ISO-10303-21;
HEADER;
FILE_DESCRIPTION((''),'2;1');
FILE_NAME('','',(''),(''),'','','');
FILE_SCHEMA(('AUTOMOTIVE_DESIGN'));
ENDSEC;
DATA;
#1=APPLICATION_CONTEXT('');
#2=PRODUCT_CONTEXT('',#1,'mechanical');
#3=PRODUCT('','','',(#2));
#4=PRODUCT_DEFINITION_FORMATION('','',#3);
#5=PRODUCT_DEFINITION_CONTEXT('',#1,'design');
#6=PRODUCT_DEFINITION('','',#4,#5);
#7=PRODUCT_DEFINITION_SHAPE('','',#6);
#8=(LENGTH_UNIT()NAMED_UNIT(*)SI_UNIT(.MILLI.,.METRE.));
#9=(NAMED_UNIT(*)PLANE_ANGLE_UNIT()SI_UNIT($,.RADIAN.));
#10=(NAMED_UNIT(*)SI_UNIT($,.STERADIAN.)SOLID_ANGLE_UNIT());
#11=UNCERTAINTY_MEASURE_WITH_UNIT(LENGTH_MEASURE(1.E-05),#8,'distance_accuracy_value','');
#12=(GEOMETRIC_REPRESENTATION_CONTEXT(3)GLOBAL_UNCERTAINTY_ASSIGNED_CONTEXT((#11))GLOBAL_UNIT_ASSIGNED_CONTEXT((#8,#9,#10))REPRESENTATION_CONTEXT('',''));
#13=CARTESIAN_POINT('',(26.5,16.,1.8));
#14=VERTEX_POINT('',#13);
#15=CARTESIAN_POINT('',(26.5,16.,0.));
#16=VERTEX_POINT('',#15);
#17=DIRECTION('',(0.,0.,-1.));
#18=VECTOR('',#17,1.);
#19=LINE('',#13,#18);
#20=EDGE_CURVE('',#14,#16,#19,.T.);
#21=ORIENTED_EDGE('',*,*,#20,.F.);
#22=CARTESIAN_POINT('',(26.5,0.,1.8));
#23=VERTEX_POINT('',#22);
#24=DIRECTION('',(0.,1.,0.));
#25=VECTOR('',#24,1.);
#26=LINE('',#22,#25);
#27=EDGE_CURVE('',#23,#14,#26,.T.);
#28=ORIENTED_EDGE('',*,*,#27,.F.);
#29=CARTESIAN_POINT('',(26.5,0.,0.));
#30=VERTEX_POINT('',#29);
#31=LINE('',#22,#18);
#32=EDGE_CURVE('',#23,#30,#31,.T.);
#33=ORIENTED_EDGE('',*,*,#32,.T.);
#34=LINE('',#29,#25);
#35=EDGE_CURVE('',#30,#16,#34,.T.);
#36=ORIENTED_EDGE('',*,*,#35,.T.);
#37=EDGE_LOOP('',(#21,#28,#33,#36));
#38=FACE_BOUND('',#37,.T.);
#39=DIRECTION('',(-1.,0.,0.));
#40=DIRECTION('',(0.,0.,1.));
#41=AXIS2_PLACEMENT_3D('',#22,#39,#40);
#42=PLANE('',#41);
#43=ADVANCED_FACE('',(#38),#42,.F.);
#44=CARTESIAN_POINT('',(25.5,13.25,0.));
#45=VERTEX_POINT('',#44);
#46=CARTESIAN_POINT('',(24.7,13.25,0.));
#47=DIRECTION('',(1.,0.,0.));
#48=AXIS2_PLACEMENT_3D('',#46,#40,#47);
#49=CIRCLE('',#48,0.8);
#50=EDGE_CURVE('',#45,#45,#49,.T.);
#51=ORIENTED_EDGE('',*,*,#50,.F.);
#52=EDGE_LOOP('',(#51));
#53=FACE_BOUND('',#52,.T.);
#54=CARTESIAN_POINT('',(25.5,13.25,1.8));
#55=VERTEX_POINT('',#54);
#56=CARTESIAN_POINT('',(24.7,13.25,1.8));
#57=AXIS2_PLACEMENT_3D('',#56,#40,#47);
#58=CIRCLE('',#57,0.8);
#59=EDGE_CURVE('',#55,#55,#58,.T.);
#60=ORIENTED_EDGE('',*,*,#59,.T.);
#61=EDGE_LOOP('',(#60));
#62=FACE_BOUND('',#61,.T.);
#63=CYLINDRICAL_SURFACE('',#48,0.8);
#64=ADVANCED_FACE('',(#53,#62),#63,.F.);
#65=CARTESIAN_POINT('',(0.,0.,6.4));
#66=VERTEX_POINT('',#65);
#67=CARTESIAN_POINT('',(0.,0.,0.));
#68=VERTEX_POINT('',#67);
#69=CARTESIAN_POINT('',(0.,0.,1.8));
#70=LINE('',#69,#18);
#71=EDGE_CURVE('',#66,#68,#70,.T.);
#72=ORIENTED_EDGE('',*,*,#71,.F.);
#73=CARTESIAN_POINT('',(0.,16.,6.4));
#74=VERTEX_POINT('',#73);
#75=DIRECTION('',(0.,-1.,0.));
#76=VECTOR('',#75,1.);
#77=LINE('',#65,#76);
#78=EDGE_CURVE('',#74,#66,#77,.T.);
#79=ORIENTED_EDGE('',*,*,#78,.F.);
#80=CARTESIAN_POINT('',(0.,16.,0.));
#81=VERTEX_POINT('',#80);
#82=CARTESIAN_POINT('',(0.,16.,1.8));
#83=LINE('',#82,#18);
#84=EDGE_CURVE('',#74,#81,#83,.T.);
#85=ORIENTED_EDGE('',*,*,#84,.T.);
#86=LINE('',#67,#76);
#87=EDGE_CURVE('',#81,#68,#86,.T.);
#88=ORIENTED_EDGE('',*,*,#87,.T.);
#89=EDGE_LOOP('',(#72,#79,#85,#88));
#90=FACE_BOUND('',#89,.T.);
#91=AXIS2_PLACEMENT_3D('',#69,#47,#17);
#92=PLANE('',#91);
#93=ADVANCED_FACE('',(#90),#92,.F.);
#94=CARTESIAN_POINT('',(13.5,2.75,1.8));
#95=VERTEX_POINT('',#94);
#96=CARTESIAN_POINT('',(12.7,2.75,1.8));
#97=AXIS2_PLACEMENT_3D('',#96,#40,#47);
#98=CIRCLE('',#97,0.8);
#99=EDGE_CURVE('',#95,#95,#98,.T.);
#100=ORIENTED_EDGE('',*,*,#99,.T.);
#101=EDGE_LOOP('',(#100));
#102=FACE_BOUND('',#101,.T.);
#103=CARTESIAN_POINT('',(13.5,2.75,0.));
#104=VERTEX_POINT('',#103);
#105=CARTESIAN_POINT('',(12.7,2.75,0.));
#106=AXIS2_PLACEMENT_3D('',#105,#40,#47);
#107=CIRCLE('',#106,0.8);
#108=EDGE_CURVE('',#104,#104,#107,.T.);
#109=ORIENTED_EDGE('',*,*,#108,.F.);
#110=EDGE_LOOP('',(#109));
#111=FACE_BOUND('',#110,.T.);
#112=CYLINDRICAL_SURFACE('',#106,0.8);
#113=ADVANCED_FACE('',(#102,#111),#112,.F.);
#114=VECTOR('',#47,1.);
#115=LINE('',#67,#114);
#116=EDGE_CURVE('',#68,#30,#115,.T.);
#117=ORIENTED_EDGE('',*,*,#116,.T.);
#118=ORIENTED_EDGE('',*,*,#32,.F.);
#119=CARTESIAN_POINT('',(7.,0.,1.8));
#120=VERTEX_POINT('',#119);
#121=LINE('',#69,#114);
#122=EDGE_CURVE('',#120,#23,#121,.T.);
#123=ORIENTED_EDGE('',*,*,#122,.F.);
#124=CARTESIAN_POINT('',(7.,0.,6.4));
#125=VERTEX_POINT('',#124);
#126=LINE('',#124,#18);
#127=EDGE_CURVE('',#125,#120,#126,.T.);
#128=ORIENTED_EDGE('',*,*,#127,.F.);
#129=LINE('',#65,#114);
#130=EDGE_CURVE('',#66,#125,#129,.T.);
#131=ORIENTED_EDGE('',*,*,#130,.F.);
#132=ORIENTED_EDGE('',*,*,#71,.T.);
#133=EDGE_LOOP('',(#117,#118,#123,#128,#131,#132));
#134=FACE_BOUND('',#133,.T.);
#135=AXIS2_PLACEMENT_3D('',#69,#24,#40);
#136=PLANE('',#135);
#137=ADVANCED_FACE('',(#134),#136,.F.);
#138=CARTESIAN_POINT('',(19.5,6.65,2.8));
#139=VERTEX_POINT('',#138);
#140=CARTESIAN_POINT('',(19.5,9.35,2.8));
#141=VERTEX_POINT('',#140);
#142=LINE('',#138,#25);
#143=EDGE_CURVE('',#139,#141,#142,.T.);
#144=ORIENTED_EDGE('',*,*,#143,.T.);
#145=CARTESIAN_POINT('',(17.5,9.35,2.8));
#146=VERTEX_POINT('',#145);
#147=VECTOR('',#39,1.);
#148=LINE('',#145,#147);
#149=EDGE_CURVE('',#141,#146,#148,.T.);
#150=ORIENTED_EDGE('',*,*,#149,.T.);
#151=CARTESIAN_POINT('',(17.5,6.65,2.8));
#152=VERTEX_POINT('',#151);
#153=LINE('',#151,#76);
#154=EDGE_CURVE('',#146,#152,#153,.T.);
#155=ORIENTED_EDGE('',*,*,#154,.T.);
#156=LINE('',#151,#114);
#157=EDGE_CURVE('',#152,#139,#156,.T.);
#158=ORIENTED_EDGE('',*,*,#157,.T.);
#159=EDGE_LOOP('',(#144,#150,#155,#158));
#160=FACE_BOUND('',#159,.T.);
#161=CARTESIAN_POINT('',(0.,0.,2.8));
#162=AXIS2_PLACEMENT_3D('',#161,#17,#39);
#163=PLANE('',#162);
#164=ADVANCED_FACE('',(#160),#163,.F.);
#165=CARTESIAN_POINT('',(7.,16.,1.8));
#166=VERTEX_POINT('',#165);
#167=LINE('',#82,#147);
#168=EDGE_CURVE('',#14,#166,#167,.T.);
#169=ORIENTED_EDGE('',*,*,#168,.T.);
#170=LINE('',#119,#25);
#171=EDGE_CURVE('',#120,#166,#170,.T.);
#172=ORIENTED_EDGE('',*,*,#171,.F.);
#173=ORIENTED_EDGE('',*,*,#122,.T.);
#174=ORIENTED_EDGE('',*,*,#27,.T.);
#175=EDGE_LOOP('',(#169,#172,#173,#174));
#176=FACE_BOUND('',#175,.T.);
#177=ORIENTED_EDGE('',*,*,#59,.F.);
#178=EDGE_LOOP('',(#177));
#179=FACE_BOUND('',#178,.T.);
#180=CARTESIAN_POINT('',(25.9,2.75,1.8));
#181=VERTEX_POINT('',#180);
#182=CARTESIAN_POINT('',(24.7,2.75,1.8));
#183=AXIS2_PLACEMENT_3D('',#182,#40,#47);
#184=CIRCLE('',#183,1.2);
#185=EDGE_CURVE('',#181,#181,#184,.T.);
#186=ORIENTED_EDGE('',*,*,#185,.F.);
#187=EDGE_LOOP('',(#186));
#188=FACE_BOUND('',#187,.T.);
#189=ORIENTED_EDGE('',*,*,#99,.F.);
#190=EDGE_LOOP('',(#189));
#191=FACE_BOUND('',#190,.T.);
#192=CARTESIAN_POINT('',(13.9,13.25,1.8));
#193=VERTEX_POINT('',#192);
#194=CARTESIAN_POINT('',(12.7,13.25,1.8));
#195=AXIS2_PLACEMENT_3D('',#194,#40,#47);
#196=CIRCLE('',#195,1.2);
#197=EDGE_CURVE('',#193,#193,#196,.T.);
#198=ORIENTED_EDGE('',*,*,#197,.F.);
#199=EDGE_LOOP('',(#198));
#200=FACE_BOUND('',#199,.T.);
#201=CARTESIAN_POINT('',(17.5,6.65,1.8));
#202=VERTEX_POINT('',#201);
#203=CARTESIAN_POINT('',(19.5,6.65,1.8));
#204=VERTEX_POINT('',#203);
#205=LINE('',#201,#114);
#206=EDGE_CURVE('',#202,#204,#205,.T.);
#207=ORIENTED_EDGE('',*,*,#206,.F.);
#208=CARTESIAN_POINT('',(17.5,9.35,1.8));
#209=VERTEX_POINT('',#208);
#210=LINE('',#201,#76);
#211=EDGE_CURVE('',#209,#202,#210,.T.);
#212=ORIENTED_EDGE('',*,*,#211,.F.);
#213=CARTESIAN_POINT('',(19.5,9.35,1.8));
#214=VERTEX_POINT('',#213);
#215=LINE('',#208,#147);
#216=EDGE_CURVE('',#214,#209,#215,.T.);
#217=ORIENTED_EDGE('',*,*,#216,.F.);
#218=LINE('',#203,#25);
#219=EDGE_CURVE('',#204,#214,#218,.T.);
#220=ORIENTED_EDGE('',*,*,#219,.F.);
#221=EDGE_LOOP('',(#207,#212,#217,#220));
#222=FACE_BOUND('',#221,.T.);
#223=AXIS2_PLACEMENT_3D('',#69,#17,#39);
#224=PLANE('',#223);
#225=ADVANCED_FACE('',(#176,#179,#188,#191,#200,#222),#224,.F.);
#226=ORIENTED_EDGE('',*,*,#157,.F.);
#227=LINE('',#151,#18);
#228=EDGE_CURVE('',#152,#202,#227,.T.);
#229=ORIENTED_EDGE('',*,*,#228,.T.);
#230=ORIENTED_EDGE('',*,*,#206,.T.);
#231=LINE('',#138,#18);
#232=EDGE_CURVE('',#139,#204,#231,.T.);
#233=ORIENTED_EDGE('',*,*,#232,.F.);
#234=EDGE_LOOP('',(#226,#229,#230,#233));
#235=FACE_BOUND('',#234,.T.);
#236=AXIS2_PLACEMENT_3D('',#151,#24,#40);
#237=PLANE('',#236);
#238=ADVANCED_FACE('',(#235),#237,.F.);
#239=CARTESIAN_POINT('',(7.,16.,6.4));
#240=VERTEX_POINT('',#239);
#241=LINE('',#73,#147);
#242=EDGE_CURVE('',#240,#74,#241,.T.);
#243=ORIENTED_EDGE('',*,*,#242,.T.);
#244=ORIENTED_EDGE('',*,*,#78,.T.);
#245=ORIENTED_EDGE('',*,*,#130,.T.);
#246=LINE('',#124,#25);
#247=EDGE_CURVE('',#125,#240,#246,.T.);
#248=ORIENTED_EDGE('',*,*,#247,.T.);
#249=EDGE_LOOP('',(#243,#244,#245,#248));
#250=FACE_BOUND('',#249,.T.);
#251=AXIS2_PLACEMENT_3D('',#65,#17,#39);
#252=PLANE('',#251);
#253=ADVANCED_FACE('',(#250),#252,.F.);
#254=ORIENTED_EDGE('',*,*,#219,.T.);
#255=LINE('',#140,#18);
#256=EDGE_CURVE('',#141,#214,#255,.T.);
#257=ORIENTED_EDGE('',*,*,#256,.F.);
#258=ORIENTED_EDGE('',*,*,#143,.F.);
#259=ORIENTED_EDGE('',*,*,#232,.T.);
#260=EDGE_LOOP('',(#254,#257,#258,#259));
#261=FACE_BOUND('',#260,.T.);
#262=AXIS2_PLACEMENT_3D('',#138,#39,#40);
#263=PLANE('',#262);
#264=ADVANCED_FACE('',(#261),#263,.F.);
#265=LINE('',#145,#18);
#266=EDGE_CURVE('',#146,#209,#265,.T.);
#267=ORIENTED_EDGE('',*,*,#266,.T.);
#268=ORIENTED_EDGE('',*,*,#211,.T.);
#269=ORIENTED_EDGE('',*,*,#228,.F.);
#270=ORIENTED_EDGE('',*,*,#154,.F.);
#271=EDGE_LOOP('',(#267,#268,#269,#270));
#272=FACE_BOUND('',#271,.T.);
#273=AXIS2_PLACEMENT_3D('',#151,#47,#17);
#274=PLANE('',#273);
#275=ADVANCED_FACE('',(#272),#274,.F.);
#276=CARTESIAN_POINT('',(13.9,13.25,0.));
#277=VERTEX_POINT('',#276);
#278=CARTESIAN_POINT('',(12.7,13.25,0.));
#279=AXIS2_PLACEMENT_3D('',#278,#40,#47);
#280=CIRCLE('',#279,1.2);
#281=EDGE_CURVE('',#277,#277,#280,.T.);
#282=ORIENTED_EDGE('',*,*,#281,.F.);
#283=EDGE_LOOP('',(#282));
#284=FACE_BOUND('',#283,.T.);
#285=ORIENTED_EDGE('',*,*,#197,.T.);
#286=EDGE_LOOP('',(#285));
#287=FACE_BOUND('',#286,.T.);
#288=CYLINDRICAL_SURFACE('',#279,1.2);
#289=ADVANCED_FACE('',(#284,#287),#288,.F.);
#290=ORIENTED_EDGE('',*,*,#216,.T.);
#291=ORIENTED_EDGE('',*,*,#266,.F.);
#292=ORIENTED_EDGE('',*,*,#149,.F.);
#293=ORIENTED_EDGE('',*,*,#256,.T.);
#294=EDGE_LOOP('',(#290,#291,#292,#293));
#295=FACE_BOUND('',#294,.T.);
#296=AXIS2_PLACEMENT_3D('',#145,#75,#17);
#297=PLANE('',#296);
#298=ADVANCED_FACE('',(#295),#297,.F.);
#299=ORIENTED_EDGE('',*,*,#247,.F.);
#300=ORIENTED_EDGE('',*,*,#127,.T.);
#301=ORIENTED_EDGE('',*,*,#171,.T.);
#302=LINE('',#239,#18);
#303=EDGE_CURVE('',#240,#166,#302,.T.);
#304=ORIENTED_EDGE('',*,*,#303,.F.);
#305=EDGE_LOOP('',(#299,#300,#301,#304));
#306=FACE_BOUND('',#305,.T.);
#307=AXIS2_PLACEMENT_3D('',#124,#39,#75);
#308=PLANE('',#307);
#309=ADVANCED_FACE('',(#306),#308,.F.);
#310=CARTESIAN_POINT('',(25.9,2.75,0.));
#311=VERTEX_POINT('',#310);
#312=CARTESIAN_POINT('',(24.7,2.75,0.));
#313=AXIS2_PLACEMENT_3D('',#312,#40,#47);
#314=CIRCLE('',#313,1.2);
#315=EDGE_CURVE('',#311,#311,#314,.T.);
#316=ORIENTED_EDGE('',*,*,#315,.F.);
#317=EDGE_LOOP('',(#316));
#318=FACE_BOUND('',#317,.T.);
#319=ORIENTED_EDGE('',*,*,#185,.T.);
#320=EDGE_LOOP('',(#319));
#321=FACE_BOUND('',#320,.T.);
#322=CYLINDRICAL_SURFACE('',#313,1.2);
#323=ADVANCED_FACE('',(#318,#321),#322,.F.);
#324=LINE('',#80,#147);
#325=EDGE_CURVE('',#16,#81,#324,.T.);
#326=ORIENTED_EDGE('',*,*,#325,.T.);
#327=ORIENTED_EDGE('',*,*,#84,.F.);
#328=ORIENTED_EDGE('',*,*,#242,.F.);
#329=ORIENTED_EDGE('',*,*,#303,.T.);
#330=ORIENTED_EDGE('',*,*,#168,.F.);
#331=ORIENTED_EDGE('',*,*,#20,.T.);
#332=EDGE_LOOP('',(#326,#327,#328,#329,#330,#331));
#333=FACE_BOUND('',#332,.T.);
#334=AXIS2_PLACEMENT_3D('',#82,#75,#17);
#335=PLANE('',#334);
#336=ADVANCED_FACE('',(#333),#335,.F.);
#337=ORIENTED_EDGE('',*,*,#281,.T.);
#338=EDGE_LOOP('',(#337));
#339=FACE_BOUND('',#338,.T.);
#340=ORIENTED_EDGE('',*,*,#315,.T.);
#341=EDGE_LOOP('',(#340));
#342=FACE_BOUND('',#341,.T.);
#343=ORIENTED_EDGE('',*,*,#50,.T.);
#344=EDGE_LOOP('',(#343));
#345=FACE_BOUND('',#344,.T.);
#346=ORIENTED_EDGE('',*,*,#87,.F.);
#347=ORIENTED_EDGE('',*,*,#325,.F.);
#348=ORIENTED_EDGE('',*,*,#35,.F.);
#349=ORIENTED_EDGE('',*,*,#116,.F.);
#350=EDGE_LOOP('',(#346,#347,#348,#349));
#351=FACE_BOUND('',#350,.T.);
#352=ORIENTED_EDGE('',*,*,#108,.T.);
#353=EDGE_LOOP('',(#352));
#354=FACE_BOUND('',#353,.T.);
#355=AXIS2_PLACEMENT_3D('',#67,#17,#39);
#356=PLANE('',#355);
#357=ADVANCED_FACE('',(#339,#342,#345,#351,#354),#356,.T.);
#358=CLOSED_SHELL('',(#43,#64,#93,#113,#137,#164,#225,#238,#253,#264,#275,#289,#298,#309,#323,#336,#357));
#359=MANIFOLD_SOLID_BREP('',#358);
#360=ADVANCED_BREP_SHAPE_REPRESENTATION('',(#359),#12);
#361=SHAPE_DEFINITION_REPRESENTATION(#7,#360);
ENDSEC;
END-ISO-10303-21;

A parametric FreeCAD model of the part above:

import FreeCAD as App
import Part
import Sketcher
Q = App.Units.Quantity

doc = App.newDocument("Part")
body = doc.addObject("PartDesign::Body", "Body")

sketch1 = doc.addObject("Sketcher::SketchObject", "Sketch")
body.addObject(sketch1)
sketch1.AttachmentSupport = (doc.XY_Plane, [""])
sketch1.MapMode = "FlatFace"
sketch1.addGeometry(Part.LineSegment(App.Vector(0, 16, 0), App.Vector(0, 0, 0)), False)
sketch1.addGeometry(Part.LineSegment(App.Vector(0, 0, 0), App.Vector(26.5, 0, 0)), False)
sketch1.addGeometry(Part.LineSegment(App.Vector(26.5, 0, 0), App.Vector(26.5, 16, 0)), False)
sketch1.addGeometry(Part.LineSegment(App.Vector(26.5, 16, 0), App.Vector(0, 16, 0)), False)
sketch1.addConstraint(Sketcher.Constraint("Coincident", 0, 2, 1, 1))
sketch1.addConstraint(Sketcher.Constraint("Coincident", 1, 2, 2, 1))
sketch1.addConstraint(Sketcher.Constraint("Coincident", 2, 2, 3, 1))
sketch1.addConstraint(Sketcher.Constraint("Coincident", 3, 2, 0, 1))
sketch1.addConstraint(Sketcher.Constraint("Vertical", 0))
sketch1.addConstraint(Sketcher.Constraint("Horizontal", 1))
sketch1.addConstraint(Sketcher.Constraint("Vertical", 2))
sketch1.addConstraint(Sketcher.Constraint("Horizontal", 3))
sketch1.addConstraint(Sketcher.Constraint("Coincident", 0, 2, -1, 1))
sketch1.addConstraint(Sketcher.Constraint("DistanceY", 0, 2, 0, 1, Q("16 mm")))
sketch1.addConstraint(Sketcher.Constraint("DistanceX", 1, 1, 1, 2, Q("26.5 mm")))
pad1 = doc.addObject("PartDesign::Pad", "Pad")
body.addObject(pad1)
pad1.Profile = sketch1
pad1.Length = 1.8

sketch2 = doc.addObject("Sketcher::SketchObject", "Sketch001")
body.addObject(sketch2)
sketch2.AttachmentSupport = (doc.XY_Plane, [""])
sketch2.MapMode = "FlatFace"
sketch2.AttachmentOffset = App.Placement(App.Vector(0, 0, 1.8), App.Rotation())
sketch2.addGeometry(Part.LineSegment(App.Vector(0, 16, 0), App.Vector(0, 0, 0)), False)
sketch2.addGeometry(Part.LineSegment(App.Vector(0, 0, 0), App.Vector(7, 0, 0)), False)
sketch2.addGeometry(Part.LineSegment(App.Vector(7, 0, 0), App.Vector(7, 16, 0)), False)
sketch2.addGeometry(Part.LineSegment(App.Vector(7, 16, 0), App.Vector(0, 16, 0)), False)
sketch2.addConstraint(Sketcher.Constraint("Coincident", 0, 2, 1, 1))
sketch2.addConstraint(Sketcher.Constraint("Coincident", 1, 2, 2, 1))
sketch2.addConstraint(Sketcher.Constraint("Coincident", 2, 2, 3, 1))
sketch2.addConstraint(Sketcher.Constraint("Coincident", 3, 2, 0, 1))
sketch2.addConstraint(Sketcher.Constraint("Vertical", 0))
sketch2.addConstraint(Sketcher.Constraint("Horizontal", 1))
sketch2.addConstraint(Sketcher.Constraint("Vertical", 2))
sketch2.addConstraint(Sketcher.Constraint("Horizontal", 3))
sketch2.addConstraint(Sketcher.Constraint("Coincident", 0, 2, -1, 1))
sketch2.addConstraint(Sketcher.Constraint("DistanceX", 1, 1, 1, 2, Q("7 mm")))
sketch2.addConstraint(Sketcher.Constraint("DistanceY", 0, 2, 0, 1, Q("16 mm")))
pad2 = doc.addObject("PartDesign::Pad", "Pad001")
body.addObject(pad2)
pad2.Profile = sketch2
pad2.Length = 4.6

sketch3 = doc.addObject("Sketcher::SketchObject", "Sketch002")
body.addObject(sketch3)
sketch3.AttachmentSupport = (doc.XY_Plane, [""])
sketch3.MapMode = "FlatFace"
sketch3.AttachmentOffset = App.Placement(App.Vector(0, 0, 1.8), App.Rotation())
sketch3.addGeometry(Part.LineSegment(App.Vector(17.5, 9.35, 0), App.Vector(17.5, 6.65, 0)), False)
sketch3.addGeometry(Part.LineSegment(App.Vector(17.5, 6.65, 0), App.Vector(19.5, 6.65, 0)), False)
sketch3.addGeometry(Part.LineSegment(App.Vector(19.5, 6.65, 0), App.Vector(19.5, 9.35, 0)), False)
sketch3.addGeometry(Part.LineSegment(App.Vector(19.5, 9.35, 0), App.Vector(17.5, 9.35, 0)), False)
sketch3.addConstraint(Sketcher.Constraint("Coincident", 0, 2, 1, 1))
sketch3.addConstraint(Sketcher.Constraint("Coincident", 1, 2, 2, 1))
sketch3.addConstraint(Sketcher.Constraint("Coincident", 2, 2, 3, 1))
sketch3.addConstraint(Sketcher.Constraint("Coincident", 3, 2, 0, 1))
sketch3.addConstraint(Sketcher.Constraint("Vertical", 0))
sketch3.addConstraint(Sketcher.Constraint("Horizontal", 1))
sketch3.addConstraint(Sketcher.Constraint("Vertical", 2))
sketch3.addConstraint(Sketcher.Constraint("Horizontal", 3))
sketch3.addConstraint(Sketcher.Constraint("DistanceX", 1, 1, 1, 2, Q("2 mm")))
sketch3.addConstraint(Sketcher.Constraint("DistanceY", 0, 2, 0, 1, Q("2.7 mm")))
sketch3.addConstraint(Sketcher.Constraint("DistanceX", -1, 1, 0, 2, Q("17.5 mm")))
sketch3.addConstraint(Sketcher.Constraint("DistanceY", -1, 1, 0, 2, Q("6.65 mm")))
pad3 = doc.addObject("PartDesign::Pad", "Pad002")
body.addObject(pad3)
pad3.Profile = sketch3
pad3.Length = 1

sketch4 = doc.addObject("Sketcher::SketchObject", "Sketch003")
body.addObject(sketch4)
sketch4.AttachmentSupport = (doc.XY_Plane, [""])
sketch4.MapMode = "FlatFace"
sketch4.AttachmentOffset = App.Placement(App.Vector(0, 0, 1.8), App.Rotation())
sketch4.addGeometry(Part.Circle(App.Vector(24.7, 13.25, 0), App.Vector(0, 0, 1), 0.8), False)
sketch4.addGeometry(Part.Circle(App.Vector(12.7, 2.75, 0), App.Vector(0, 0, 1), 0.8), False)
sketch4.addGeometry(Part.Circle(App.Vector(24.7, 2.75, 0), App.Vector(0, 0, 1), 1.2), False)
sketch4.addGeometry(Part.Circle(App.Vector(12.7, 13.25, 0), App.Vector(0, 0, 1), 1.2), False)
sketch4.addConstraint(Sketcher.Constraint("Equal", 0, 1))
sketch4.addConstraint(Sketcher.Constraint("Equal", 2, 3))
sketch4.addConstraint(Sketcher.Constraint("Horizontal", 1, 3, 2, 3))
sketch4.addConstraint(Sketcher.Constraint("Horizontal", 0, 3, 3, 3))
sketch4.addConstraint(Sketcher.Constraint("Vertical", 0, 3, 2, 3))
sketch4.addConstraint(Sketcher.Constraint("Vertical", 1, 3, 3, 3))
sketch4.addConstraint(Sketcher.Constraint("Diameter", 0, Q("1.6 mm")))
sketch4.addConstraint(Sketcher.Constraint("Diameter", 2, Q("2.4 mm")))
sketch4.addConstraint(Sketcher.Constraint("DistanceX", 1, 3, 0, 3, Q("12 mm")))
sketch4.addConstraint(Sketcher.Constraint("DistanceX", -1, 1, 0, 3, Q("24.7 mm")))
sketch4.addConstraint(Sketcher.Constraint("DistanceY", 1, 3, 0, 3, Q("10.5 mm")))
sketch4.addConstraint(Sketcher.Constraint("DistanceY", -1, 1, 0, 3, Q("13.25 mm")))
pocket1 = doc.addObject("PartDesign::Pocket", "Pocket")
body.addObject(pocket1)
pocket1.Profile = sketch4
pocket1.Type = "ThroughAll"

doc.recompute()
